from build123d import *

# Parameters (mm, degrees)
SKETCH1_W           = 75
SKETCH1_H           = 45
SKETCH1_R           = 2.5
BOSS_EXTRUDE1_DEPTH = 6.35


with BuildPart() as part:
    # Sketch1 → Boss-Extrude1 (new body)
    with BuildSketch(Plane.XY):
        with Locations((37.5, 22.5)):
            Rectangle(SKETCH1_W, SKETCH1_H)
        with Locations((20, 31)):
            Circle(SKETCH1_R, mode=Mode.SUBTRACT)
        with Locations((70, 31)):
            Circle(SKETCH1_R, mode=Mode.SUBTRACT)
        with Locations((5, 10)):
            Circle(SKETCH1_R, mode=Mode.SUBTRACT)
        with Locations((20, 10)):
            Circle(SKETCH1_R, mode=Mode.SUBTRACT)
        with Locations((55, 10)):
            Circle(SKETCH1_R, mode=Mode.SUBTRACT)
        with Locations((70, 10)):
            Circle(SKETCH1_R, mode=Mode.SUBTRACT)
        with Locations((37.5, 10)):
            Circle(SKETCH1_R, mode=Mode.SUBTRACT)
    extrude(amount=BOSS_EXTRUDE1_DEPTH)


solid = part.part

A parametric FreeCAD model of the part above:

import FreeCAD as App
import Part
import Sketcher

V = App.Vector
Q = App.Units.Quantity

doc = App.newDocument("Part")
params = doc.addObject("Spreadsheet::Sheet", "Params")
for row, (alias, value) in enumerate([
    ("sketch1_diameter", "5 mm"),
    ("sketch1_width", "75 mm"),
    ("sketch1_height", "45 mm"),
    ("pad1_length", "6.35 mm"),
], start=1):
    params.set(f"A{row}", alias)
    params.set(f"B{row}", "=" + value)
    params.setAlias(f"B{row}", alias)

body = doc.addObject("PartDesign::Body", "Body")

# Sketch on XY plane
sketch1 = doc.addObject("Sketcher::SketchObject", "Sketch")
body.addObject(sketch1)
sketch1.AttachmentSupport = (doc.XY_Plane, [""])
sketch1.MapMode = "FlatFace"
sketch1.addGeometry(Part.LineSegment(V(0, 45, 0), V(0, 0, 0)), False)
sketch1.addGeometry(Part.LineSegment(V(0, 0, 0), V(75, 0, 0)), False)
sketch1.addGeometry(Part.LineSegment(V(75, 0, 0), V(75, 45, 0)), False)
sketch1.addGeometry(Part.LineSegment(V(75, 45, 0), V(0, 45, 0)), False)
sketch1.addGeometry(Part.Circle(V(5, 10, 0), V(0, 0, 1), 2.5), False)
sketch1.addGeometry(Part.Circle(V(20, 10, 0), V(0, 0, 1), 2.5), False)
sketch1.addGeometry(Part.Circle(V(37.5, 10, 0), V(0, 0, 1), 2.5), False)
sketch1.addGeometry(Part.Circle(V(55, 10, 0), V(0, 0, 1), 2.5), False)
sketch1.addGeometry(Part.Circle(V(70, 10, 0), V(0, 0, 1), 2.5), False)
sketch1.addGeometry(Part.Circle(V(20, 31, 0), V(0, 0, 1), 2.5), False)
sketch1.addGeometry(Part.Circle(V(70, 31, 0), V(0, 0, 1), 2.5), False)
sketch1.addConstraint(Sketcher.Constraint("Coincident", 0, 2, 1, 1))
sketch1.addConstraint(Sketcher.Constraint("Coincident", 1, 2, 2, 1))
sketch1.addConstraint(Sketcher.Constraint("Coincident", 2, 2, 3, 1))
sketch1.addConstraint(Sketcher.Constraint("Coincident", 3, 2, 0, 1))
sketch1.addConstraint(Sketcher.Constraint("Vertical", 0))
sketch1.addConstraint(Sketcher.Constraint("Horizontal", 1))
sketch1.addConstraint(Sketcher.Constraint("Vertical", 2))
sketch1.addConstraint(Sketcher.Constraint("Horizontal", 3))
sketch1.addConstraint(Sketcher.Constraint("Coincident", 0, 2, -1, 1))
sketch1.addConstraint(Sketcher.Constraint("Equal", 4, 5))
sketch1.addConstraint(Sketcher.Constraint("Equal", 5, 6))
sketch1.addConstraint(Sketcher.Constraint("Equal", 6, 7))
sketch1.addConstraint(Sketcher.Constraint("Equal", 7, 8))
sketch1.addConstraint(Sketcher.Constraint("Equal", 8, 9))
sketch1.addConstraint(Sketcher.Constraint("Equal", 9, 10))
sketch1.addConstraint(Sketcher.Constraint("Horizontal", 4, 3, 5, 3))
sketch1.addConstraint(Sketcher.Constraint("Horizontal", 5, 3, 6, 3))
sketch1.addConstraint(Sketcher.Constraint("Horizontal", 6, 3, 7, 3))
sketch1.addConstraint(Sketcher.Constraint("Horizontal", 7, 3, 8, 3))
sketch1.addConstraint(Sketcher.Constraint("Horizontal", 9, 3, 10, 3))
sketch1.addConstraint(Sketcher.Constraint("Vertical", 5, 3, 9, 3))
sketch1.addConstraint(Sketcher.Constraint("Vertical", 8, 3, 10, 3))
sketch1.addConstraint(Sketcher.Constraint("Diameter", 4, Q("5 mm")))
sketch1.addConstraint(Sketcher.Constraint("DistanceX", 1, 1, 1, 2, Q("75 mm")))
sketch1.addConstraint(Sketcher.Constraint("DistanceY", 0, 2, 0, 1, Q("45 mm")))
sketch1.addConstraint(Sketcher.Constraint("DistanceX", -1, 1, 4, 3, Q("5 mm")))
sketch1.addConstraint(Sketcher.Constraint("DistanceY", -1, 1, 4, 3, Q("10 mm")))
sketch1.addConstraint(Sketcher.Constraint("DistanceX", -1, 1, 5, 3, Q("20 mm")))
sketch1.addConstraint(Sketcher.Constraint("DistanceX", -1, 1, 7, 3, Q("55 mm")))
sketch1.addConstraint(Sketcher.Constraint("DistanceX", -1, 1, 8, 3, Q("70 mm")))
sketch1.addConstraint(Sketcher.Constraint("DistanceY", -1, 1, 9, 3, Q("31 mm")))
sketch1.addConstraint(Sketcher.Constraint("DistanceX", -1, 1, 6, 3, Q("37.5 mm")))
sketch1.setExpression("Constraints[22]", "Params.sketch1_diameter")
sketch1.setExpression("Constraints[23]", "Params.sketch1_width")
sketch1.setExpression("Constraints[24]", "Params.sketch1_height")
pad1 = doc.addObject("PartDesign::Pad", "Pad")
body.addObject(pad1)
pad1.Profile = sketch1
pad1.setExpression("Length", "Params.pad1_length")

doc.recompute()
